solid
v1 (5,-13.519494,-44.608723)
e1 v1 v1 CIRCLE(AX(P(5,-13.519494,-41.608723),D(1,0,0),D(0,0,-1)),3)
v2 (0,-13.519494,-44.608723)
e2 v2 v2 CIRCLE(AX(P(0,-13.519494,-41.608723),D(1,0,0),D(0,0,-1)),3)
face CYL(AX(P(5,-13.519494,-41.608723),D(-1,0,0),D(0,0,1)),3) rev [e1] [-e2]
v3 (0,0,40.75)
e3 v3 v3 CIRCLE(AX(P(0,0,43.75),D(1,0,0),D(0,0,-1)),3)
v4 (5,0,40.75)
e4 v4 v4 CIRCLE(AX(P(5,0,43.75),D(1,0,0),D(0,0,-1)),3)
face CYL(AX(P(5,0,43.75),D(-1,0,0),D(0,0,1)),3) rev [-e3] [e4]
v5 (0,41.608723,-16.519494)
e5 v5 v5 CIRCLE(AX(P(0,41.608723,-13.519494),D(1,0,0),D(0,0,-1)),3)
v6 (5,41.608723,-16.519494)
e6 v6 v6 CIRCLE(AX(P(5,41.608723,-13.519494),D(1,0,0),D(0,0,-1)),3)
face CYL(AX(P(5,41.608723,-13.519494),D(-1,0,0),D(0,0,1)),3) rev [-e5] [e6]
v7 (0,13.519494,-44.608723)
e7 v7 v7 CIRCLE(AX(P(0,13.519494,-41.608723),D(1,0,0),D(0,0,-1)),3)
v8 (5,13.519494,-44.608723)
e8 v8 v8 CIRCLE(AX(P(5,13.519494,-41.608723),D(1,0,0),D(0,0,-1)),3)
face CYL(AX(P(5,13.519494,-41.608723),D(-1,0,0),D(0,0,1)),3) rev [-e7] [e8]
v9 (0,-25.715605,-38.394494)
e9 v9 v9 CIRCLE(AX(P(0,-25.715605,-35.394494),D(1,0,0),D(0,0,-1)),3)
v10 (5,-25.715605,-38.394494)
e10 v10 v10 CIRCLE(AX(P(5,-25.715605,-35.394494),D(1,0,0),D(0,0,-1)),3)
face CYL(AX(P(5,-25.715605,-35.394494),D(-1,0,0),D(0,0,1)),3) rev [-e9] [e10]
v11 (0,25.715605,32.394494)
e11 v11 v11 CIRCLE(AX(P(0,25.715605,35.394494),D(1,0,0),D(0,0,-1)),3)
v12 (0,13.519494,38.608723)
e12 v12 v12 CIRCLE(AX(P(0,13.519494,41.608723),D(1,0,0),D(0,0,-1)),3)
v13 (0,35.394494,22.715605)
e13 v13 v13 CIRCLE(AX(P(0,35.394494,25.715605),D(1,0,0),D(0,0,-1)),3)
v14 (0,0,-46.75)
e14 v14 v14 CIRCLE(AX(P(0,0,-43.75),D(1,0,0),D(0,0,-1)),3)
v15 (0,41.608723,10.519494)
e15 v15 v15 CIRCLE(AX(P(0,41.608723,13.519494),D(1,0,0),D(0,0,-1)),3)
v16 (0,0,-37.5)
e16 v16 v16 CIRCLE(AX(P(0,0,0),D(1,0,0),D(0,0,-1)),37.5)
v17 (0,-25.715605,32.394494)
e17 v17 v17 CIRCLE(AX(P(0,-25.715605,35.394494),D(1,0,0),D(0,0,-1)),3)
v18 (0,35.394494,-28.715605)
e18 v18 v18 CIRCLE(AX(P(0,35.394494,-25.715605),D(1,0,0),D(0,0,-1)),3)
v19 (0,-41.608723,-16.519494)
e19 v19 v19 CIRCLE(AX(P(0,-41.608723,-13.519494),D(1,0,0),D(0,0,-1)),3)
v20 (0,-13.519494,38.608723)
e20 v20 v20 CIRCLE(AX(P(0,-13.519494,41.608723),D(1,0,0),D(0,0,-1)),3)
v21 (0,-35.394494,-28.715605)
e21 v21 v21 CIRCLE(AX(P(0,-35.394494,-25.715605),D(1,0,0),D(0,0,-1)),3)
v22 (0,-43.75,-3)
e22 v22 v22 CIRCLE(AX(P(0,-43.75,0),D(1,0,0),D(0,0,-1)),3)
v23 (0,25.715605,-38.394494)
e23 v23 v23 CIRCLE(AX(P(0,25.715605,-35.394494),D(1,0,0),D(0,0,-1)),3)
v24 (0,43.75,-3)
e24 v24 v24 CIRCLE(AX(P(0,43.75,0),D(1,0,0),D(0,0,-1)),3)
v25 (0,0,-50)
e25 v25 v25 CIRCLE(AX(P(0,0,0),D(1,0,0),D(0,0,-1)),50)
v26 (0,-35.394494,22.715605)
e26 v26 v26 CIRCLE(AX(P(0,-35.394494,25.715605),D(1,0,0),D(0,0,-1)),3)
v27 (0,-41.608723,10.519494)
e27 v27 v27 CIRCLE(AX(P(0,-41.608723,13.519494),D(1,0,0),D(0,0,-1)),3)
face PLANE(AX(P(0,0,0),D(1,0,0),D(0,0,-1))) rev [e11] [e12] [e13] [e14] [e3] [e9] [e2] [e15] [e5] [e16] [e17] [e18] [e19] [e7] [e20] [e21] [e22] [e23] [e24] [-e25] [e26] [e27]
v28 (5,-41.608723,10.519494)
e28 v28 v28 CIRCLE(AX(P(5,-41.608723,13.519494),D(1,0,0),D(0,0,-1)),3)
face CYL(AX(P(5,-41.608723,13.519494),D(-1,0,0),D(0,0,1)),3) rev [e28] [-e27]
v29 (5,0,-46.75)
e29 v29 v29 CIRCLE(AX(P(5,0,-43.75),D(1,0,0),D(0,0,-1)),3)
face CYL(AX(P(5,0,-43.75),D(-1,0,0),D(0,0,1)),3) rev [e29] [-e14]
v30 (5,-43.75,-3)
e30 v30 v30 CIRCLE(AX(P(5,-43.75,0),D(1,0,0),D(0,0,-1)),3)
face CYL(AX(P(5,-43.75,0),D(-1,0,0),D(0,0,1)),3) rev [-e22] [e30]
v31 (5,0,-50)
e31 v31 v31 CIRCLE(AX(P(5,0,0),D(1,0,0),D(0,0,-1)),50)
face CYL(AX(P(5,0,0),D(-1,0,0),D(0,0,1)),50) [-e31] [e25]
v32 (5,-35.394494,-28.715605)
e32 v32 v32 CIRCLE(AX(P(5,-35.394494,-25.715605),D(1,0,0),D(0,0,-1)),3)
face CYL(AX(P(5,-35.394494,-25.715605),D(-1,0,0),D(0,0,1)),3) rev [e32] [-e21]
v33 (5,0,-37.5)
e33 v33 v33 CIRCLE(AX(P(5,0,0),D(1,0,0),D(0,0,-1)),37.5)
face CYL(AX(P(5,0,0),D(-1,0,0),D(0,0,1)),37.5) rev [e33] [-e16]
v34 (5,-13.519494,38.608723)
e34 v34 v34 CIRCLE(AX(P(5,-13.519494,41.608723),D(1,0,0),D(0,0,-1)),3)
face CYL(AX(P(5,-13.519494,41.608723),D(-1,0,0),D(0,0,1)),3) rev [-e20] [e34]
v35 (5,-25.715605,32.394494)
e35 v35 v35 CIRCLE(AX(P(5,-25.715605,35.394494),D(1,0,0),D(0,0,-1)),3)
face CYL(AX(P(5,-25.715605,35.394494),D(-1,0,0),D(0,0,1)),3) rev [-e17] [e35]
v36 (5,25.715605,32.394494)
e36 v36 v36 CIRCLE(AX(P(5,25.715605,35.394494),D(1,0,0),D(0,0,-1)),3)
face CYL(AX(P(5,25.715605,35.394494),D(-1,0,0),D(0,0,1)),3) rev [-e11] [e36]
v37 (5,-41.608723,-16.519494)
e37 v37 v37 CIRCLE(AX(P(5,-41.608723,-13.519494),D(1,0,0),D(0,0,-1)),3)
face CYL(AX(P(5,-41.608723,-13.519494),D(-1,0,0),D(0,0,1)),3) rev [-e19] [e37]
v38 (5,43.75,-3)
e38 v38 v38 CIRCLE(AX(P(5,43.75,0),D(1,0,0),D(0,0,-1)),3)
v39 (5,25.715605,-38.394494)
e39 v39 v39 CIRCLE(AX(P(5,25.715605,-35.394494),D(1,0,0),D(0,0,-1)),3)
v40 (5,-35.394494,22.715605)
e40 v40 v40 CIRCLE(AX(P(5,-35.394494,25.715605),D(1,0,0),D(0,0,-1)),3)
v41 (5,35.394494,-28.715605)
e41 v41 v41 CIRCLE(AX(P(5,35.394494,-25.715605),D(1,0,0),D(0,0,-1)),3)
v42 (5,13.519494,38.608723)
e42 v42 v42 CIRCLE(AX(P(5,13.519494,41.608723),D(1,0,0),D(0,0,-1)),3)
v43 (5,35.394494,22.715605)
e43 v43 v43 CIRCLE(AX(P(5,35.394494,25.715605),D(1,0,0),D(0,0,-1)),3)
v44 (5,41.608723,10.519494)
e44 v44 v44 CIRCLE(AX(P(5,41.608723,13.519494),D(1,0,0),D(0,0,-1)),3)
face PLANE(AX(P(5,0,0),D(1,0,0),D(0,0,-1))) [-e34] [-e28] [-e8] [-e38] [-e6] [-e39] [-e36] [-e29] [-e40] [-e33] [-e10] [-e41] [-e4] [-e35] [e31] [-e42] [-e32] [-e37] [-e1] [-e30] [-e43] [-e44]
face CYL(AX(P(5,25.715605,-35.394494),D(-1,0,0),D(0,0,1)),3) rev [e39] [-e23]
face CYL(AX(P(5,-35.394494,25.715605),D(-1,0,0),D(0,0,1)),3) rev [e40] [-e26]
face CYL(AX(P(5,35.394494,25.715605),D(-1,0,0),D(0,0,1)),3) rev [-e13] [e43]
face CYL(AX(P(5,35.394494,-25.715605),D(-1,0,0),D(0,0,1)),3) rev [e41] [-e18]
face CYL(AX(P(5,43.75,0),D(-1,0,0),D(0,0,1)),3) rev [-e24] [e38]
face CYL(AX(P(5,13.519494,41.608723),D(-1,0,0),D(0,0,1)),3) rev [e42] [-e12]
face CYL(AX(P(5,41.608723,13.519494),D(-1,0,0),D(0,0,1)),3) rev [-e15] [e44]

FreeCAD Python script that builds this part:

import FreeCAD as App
import Part
import Sketcher
from FreeCAD import Vector

doc = App.newDocument("Part")
params = doc.addObject("Spreadsheet::Sheet", "Params")
for row, (alias, value) in enumerate([
    ("sketch1_diameter", "100 mm"),
    ("sketch1_diameter2", "6 mm"),
    ("sketch1_diameter3", "75 mm"),
    ("pad1_length", "5 mm"),
], start=1):
    params.set(f"A{row}", alias)
    params.set(f"B{row}", "=" + value)
    params.setAlias(f"B{row}", alias)

body = doc.addObject("PartDesign::Body", "Body")

sketch1 = doc.addObject("Sketcher::SketchObject", "Sketch")
body.addObject(sketch1)
sketch1.AttachmentSupport = (doc.YZ_Plane, [""])
sketch1.MapMode = "FlatFace"
sketch1.addGeometry([
    Part.Circle(Vector(0, 0, 0), Vector(0, 0, 1), 50),
    Part.Circle(Vector(-35.394494, 25.715605, 0), Vector(0, 0, 1), 3),
    Part.Circle(Vector(-25.715605, 35.394494, 0), Vector(0, 0, 1), 3),
    Part.Circle(Vector(-41.608723, 13.519494, 0), Vector(0, 0, 1), 3),
    Part.Circle(Vector(-43.75, 0, 0), Vector(0, 0, 1), 3),
    Part.Circle(Vector(-13.519494, 41.608723, 0), Vector(0, 0, 1), 3),
    Part.Circle(Vector(0, 43.75, 0), Vector(0, 0, 1), 3),
    Part.Circle(Vector(0, 0, 0), Vector(0, 0, 1), 37.5),
    Part.Circle(Vector(-41.608723, -13.519494, 0), Vector(0, 0, 1), 3),
    Part.Circle(Vector(-35.394494, -25.715605, 0), Vector(0, 0, 1), 3),
    Part.Circle(Vector(-25.715605, -35.394494, 0), Vector(0, 0, 1), 3),
    Part.Circle(Vector(-13.519494, -41.608723, 0), Vector(0, 0, 1), 3),
    Part.Circle(Vector(0, -43.75, 0), Vector(0, 0, 1), 3),
    Part.Circle(Vector(13.519494, 41.608723, 0), Vector(0, 0, 1), 3),
    Part.Circle(Vector(25.715605, 35.394494, 0), Vector(0, 0, 1), 3),
    Part.Circle(Vector(35.394494, 25.715605, 0), Vector(0, 0, 1), 3),
    Part.Circle(Vector(41.608723, 13.519494, 0), Vector(0, 0, 1), 3),
    Part.Circle(Vector(43.75, 0, 0), Vector(0, 0, 1), 3),
    Part.Circle(Vector(13.519494, -41.608723, 0), Vector(0, 0, 1), 3),
    Part.Circle(Vector(41.608723, -13.519494, 0), Vector(0, 0, 1), 3),
    Part.Circle(Vector(25.715605, -35.394494, 0), Vector(0, 0, 1), 3),
    Part.Circle(Vector(35.394494, -25.715605, 0), Vector(0, 0, 1), 3),
], False)
sketch1.addConstraint([
    Sketcher.Constraint("Coincident", 0, 3, -1, 1),
    Sketcher.Constraint("Coincident", 7, 3, -1, 1),
    Sketcher.Constraint("Equal", 1, 2),
    Sketcher.Constraint("Equal", 2, 3),
    Sketcher.Constraint("Equal", 3, 4),
    Sketcher.Constraint("Equal", 4, 5),
    Sketcher.Constraint("Equal", 5, 6),
    Sketcher.Constraint("Equal", 6, 8),
    Sketcher.Constraint("Equal", 8, 9),
    Sketcher.Constraint("Equal", 9, 10),
    Sketcher.Constraint("Equal", 10, 11),
    Sketcher.Constraint("Equal", 11, 12),
    Sketcher.Constraint("Equal", 12, 13),
    Sketcher.Constraint("Equal", 13, 14),
    Sketcher.Constraint("Equal", 14, 15),
    Sketcher.Constraint("Equal", 15, 16),
    Sketcher.Constraint("Equal", 16, 17),
    Sketcher.Constraint("Equal", 17, 18),
    Sketcher.Constraint("Equal", 18, 19),
    Sketcher.Constraint("Equal", 19, 20),
    Sketcher.Constraint("Equal", 20, 21),
    Sketcher.Constraint("Symmetric", 6, 3, 12, 3, -1, 1),
    Sketcher.Constraint("Symmetric", 11, 3, 13, 3, -1, 1),
    Sketcher.Constraint("Symmetric", 10, 3, 14, 3, -1, 1),
    Sketcher.Constraint("Symmetric", 9, 3, 15, 3, -1, 1),
    Sketcher.Constraint("Symmetric", 8, 3, 16, 3, -1, 1),
    Sketcher.Constraint("Symmetric", 4, 3, 17, 3, -1, 1),
    Sketcher.Constraint("Symmetric", 5, 3, 18, 3, -1, 1),
    Sketcher.Constraint("Symmetric", 3, 3, 19, 3, -1, 1),
    Sketcher.Constraint("Symmetric", 2, 3, 20, 3, -1, 1),
    Sketcher.Constraint("Symmetric", 1, 3, 21, 3, -1, 1),
    Sketcher.Constraint("Symmetric", 5, 3, 13, 3, -2),
    Sketcher.Constraint("Symmetric", 2, 3, 14, 3, -2),
    Sketcher.Constraint("Symmetric", 1, 3, 15, 3, -2),
    Sketcher.Constraint("Symmetric", 3, 3, 16, 3, -2),
    Sketcher.Constraint("PointOnObject", 4, 3, -1),
    Sketcher.Constraint("PointOnObject", 6, 3, -2),
    Sketcher.Constraint("Diameter", 0, 100.0),
    Sketcher.Constraint("Diameter", 1, 6.0),
    Sketcher.Constraint("Diameter", 7, 75.0),
    Sketcher.Constraint("DistanceX", 4, 3, -1, 1, 43.75),
    Sketcher.Constraint("DistanceY", -1, 1, 6, 3, 43.75),
    Sketcher.Constraint("DistanceY", 3, 3, 2, 3, 21.875),
    Sketcher.Constraint("DistanceX", 1, 3, 5, 3, 21.875),
    Sketcher.Constraint("DistanceY", 8, 3, 1, 3, 39.235098),
    Sketcher.Constraint("DistanceX", 2, 3, 13, 3, 39.235098),
    Sketcher.Constraint("DistanceX", 1, 3, 2, 3, 9.678889),
    Sketcher.Constraint("DistanceY", 1, 3, 2, 3, 9.678889),
    Sketcher.Constraint("DistanceX", 3, 3, 1, 3, 6.214229),
    Sketcher.Constraint("DistanceY", 2, 3, 5, 3, 6.214229),
])
sketch1.setExpression("Constraints[37]", "Params.sketch1_diameter")
sketch1.setExpression("Constraints[38]", "Params.sketch1_diameter2")
sketch1.setExpression("Constraints[39]", "Params.sketch1_diameter3")
pad1 = doc.addObject("PartDesign::Pad", "Pad")
body.addObject(pad1)
pad1.Profile = sketch1
pad1.setExpression("Length", "Params.pad1_length")

doc.recompute()
